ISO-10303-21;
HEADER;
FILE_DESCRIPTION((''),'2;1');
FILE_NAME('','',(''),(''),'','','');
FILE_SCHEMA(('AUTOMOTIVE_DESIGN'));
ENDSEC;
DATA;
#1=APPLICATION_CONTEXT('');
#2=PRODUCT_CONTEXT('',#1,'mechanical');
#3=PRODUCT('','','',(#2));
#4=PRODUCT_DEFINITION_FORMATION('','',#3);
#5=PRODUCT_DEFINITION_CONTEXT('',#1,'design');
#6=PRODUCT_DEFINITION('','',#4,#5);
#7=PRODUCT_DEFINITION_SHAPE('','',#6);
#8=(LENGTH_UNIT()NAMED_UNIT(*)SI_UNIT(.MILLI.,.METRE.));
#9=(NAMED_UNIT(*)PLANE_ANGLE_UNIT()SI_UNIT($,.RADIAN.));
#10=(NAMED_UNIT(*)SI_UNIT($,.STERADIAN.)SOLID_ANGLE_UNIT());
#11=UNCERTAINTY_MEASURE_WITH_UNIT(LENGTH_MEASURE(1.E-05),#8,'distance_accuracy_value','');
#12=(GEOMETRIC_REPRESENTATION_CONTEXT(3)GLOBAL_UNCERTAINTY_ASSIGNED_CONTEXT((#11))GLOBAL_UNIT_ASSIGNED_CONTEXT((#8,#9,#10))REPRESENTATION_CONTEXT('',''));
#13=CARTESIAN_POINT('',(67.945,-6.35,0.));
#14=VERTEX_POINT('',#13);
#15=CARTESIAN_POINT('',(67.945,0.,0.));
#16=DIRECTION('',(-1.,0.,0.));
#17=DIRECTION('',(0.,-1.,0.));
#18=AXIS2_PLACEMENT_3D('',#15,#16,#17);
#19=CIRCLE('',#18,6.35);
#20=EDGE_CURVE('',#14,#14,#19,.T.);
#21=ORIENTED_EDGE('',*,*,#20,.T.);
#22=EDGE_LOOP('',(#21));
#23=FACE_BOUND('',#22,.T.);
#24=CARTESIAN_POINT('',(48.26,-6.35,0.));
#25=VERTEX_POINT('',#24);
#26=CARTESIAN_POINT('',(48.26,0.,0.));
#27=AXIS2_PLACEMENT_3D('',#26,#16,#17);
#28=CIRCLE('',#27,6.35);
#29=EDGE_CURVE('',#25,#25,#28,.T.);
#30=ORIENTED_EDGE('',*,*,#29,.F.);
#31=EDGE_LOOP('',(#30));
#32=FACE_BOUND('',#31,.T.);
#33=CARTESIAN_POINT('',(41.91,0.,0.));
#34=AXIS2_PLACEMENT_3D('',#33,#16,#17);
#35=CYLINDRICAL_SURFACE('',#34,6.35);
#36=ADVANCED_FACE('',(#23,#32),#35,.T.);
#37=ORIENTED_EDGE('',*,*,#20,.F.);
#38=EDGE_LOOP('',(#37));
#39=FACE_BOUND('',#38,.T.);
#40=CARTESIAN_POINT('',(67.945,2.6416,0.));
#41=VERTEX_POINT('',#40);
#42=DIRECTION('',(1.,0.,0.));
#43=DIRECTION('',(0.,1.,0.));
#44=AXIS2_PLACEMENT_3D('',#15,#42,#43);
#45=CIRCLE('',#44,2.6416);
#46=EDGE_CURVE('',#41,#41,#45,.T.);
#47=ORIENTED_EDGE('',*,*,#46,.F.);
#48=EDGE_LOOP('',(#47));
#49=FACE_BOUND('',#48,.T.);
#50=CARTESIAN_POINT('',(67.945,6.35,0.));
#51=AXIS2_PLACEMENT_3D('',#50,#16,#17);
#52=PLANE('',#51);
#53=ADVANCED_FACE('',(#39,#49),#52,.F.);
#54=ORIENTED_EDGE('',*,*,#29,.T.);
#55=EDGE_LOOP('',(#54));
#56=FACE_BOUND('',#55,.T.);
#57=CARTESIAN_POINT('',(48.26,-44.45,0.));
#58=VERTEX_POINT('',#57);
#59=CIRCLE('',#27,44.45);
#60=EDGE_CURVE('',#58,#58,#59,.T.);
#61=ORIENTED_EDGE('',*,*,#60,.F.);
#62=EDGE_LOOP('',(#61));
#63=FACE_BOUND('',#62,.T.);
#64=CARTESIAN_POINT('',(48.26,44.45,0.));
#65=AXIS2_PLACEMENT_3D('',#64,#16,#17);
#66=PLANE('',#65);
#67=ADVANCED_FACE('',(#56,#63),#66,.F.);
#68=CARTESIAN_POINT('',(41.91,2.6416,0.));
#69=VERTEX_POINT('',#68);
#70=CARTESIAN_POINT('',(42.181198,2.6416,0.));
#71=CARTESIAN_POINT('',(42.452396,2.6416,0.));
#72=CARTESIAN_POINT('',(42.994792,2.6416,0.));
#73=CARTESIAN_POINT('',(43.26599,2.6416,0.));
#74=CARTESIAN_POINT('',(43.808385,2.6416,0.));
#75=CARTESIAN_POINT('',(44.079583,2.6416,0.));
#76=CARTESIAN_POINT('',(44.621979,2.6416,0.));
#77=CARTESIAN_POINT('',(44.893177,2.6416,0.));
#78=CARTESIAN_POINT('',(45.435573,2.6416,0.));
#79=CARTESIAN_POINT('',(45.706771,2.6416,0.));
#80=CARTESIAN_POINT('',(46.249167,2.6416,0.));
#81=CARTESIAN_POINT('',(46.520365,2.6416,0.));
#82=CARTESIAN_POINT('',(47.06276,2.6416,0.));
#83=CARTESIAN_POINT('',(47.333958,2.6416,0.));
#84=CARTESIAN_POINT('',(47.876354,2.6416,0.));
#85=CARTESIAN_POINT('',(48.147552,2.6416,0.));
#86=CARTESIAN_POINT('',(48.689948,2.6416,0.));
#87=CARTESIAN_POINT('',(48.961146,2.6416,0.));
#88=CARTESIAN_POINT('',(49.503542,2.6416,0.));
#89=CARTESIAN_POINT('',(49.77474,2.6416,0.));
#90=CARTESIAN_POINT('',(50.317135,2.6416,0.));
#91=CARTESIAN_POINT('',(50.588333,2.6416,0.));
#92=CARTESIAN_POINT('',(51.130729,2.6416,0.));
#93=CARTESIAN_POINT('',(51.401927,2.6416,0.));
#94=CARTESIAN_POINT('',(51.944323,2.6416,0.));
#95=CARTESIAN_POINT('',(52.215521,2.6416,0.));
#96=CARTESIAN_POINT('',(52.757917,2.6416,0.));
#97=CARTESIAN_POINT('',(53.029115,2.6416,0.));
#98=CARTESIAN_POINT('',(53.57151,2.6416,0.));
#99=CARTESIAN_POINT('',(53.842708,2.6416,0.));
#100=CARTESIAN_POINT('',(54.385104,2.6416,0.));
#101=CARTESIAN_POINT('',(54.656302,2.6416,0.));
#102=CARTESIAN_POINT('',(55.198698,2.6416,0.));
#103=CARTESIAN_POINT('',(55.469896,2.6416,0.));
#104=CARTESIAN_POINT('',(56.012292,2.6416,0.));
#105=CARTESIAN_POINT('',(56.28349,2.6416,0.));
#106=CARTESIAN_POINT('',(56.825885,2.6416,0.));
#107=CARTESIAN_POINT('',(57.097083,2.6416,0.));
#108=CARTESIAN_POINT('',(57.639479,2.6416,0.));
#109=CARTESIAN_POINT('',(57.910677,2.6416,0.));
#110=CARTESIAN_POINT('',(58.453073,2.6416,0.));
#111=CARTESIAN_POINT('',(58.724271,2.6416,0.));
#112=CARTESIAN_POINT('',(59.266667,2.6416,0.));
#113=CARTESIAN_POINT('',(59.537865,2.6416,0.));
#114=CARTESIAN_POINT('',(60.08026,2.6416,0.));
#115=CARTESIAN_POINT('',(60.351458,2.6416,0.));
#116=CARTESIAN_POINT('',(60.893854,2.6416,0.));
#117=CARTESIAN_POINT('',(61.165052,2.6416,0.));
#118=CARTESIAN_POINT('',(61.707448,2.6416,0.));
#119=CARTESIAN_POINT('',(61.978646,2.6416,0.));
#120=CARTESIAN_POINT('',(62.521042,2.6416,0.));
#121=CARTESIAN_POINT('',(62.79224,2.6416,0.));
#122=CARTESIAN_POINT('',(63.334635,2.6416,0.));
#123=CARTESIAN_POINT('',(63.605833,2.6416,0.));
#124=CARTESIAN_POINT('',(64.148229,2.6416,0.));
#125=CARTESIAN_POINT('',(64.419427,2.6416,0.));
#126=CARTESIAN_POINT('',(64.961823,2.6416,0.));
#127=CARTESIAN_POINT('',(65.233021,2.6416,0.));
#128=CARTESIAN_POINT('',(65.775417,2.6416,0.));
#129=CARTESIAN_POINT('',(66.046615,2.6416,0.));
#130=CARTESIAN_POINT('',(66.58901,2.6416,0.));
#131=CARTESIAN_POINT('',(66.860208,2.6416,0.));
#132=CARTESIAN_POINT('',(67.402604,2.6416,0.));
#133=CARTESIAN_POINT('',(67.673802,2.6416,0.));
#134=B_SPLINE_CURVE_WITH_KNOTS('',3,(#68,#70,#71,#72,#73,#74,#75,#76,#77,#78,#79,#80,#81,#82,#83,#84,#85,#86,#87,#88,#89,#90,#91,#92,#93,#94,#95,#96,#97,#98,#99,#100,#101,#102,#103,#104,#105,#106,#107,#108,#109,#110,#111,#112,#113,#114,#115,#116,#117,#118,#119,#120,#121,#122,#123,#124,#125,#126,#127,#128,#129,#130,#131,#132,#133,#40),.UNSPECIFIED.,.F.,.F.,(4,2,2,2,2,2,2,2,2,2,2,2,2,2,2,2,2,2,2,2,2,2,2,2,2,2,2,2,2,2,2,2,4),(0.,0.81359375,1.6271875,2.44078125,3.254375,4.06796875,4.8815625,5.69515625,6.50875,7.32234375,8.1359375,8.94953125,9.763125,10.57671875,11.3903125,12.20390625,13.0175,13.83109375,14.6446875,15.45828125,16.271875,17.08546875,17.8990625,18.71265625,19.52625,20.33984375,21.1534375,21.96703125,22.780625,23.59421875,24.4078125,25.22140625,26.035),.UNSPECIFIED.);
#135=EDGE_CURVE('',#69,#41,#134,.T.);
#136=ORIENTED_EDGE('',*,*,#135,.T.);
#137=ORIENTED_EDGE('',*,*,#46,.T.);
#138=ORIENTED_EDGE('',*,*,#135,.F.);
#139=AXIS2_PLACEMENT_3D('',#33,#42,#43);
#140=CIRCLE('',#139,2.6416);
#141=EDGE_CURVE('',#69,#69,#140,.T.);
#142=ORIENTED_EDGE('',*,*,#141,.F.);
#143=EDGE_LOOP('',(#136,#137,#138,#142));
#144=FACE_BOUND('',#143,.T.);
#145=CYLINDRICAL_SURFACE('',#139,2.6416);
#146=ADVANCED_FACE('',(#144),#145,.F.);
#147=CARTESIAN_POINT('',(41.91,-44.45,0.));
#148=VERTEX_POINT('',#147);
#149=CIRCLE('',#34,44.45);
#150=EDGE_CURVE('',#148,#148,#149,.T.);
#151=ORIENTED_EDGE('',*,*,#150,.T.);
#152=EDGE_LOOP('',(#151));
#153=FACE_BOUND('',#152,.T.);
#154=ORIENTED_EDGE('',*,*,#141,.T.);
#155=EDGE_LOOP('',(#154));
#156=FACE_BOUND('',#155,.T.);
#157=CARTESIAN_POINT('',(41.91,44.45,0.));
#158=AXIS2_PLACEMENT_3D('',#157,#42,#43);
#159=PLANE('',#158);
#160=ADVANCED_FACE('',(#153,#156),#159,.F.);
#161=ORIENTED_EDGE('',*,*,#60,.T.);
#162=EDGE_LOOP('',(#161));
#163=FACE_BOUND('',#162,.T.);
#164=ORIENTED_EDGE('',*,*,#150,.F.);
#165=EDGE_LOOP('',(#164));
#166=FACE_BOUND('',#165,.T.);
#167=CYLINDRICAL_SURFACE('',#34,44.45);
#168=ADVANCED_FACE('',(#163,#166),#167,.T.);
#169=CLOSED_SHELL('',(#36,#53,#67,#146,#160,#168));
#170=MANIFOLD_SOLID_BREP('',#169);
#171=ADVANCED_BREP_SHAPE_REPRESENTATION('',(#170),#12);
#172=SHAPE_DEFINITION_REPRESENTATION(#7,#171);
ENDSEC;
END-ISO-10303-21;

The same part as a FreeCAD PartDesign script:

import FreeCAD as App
import Part
import Sketcher
Q = App.Units.Quantity

doc = App.newDocument("Part")
body = doc.addObject("PartDesign::Body", "Body")

# Sketch on XY plane
sketch1 = body.newObject("Sketcher::SketchObject", "Sketch")
sketch1.AttachmentSupport = (doc.getObject("XY_Plane"), [""])
sketch1.MapMode = "FlatFace"
sketch1.addGeometry(Part.LineSegment(App.Vector(48.26, 44.45, 0), App.Vector(41.91, 44.45, 0)), False)
sketch1.addGeometry(Part.LineSegment(App.Vector(41.91, 44.45, 0), App.Vector(41.91, 0, 0)), False)
sketch1.addGeometry(Part.LineSegment(App.Vector(41.91, 0, 0), App.Vector(67.945, 0, 0)), False)
sketch1.addGeometry(Part.LineSegment(App.Vector(67.945, 0, 0), App.Vector(67.945, 6.35, 0)), False)
sketch1.addGeometry(Part.LineSegment(App.Vector(67.945, 6.35, 0), App.Vector(48.26, 6.35, 0)), False)
sketch1.addGeometry(Part.LineSegment(App.Vector(48.26, 6.35, 0), App.Vector(48.26, 44.45, 0)), False)
sketch1.addConstraint(Sketcher.Constraint("Coincident", 0, 2, 1, 1))
sketch1.addConstraint(Sketcher.Constraint("Coincident", 1, 2, 2, 1))
sketch1.addConstraint(Sketcher.Constraint("Coincident", 2, 2, 3, 1))
sketch1.addConstraint(Sketcher.Constraint("Coincident", 3, 2, 4, 1))
sketch1.addConstraint(Sketcher.Constraint("Coincident", 4, 2, 5, 1))
sketch1.addConstraint(Sketcher.Constraint("Coincident", 5, 2, 0, 1))
sketch1.addConstraint(Sketcher.Constraint("Horizontal", 0))
sketch1.addConstraint(Sketcher.Constraint("Vertical", 1))
sketch1.addConstraint(Sketcher.Constraint("Horizontal", 2))
sketch1.addConstraint(Sketcher.Constraint("Vertical", 3))
sketch1.addConstraint(Sketcher.Constraint("Horizontal", 4))
sketch1.addConstraint(Sketcher.Constraint("Vertical", 5))
sketch1.addConstraint(Sketcher.Constraint("PointOnObject", 1, 2, -1))
sketch1.addConstraint(Sketcher.Constraint("Equal", 0, 3))
sketch1.addConstraint(Sketcher.Constraint("DistanceY", 5, 1, 5, 2, Q("1.5 in")))
sketch1.addConstraint(Sketcher.Constraint("DistanceX", 0, 2, 0, 1, Q("0.25 in")))
sketch1.addConstraint(Sketcher.Constraint("DistanceX", -1, 1, 4, 2, Q("1.9 in")))
sketch1.addConstraint(Sketcher.Constraint("DistanceX", 2, 1, 2, 2, Q("1.025 in")))
revolution = body.newObject("PartDesign::Revolution", "Revolution")
revolution.Profile = sketch1
revolution.ReferenceAxis = (sketch1, ["H_Axis"])
revolution.Angle = 360

# Sketch on YZ plane
sketch2 = body.newObject("Sketcher::SketchObject", "Sketch001")
sketch2.AttachmentSupport = (doc.getObject("YZ_Plane"), [""])
sketch2.MapMode = "FlatFace"
sketch2.AttachmentOffset = App.Placement(App.Vector(0, 0, 2.675 * 25.4), App.Rotation())
sketch2.addGeometry(Part.Circle(App.Vector(0, 0, 0), App.Vector(0, 0, 1), 2.6416), False)
sketch2.addConstraint(Sketcher.Constraint("Coincident", 0, 3, -1, 1))
sketch2.addConstraint(Sketcher.Constraint("Diameter", 0, Q("0.208 in")))
pocket1 = body.newObject("PartDesign::Pocket", "Pocket")
pocket1.Profile = sketch2
pocket1.Type = "ThroughAll"

doc.recompute()
